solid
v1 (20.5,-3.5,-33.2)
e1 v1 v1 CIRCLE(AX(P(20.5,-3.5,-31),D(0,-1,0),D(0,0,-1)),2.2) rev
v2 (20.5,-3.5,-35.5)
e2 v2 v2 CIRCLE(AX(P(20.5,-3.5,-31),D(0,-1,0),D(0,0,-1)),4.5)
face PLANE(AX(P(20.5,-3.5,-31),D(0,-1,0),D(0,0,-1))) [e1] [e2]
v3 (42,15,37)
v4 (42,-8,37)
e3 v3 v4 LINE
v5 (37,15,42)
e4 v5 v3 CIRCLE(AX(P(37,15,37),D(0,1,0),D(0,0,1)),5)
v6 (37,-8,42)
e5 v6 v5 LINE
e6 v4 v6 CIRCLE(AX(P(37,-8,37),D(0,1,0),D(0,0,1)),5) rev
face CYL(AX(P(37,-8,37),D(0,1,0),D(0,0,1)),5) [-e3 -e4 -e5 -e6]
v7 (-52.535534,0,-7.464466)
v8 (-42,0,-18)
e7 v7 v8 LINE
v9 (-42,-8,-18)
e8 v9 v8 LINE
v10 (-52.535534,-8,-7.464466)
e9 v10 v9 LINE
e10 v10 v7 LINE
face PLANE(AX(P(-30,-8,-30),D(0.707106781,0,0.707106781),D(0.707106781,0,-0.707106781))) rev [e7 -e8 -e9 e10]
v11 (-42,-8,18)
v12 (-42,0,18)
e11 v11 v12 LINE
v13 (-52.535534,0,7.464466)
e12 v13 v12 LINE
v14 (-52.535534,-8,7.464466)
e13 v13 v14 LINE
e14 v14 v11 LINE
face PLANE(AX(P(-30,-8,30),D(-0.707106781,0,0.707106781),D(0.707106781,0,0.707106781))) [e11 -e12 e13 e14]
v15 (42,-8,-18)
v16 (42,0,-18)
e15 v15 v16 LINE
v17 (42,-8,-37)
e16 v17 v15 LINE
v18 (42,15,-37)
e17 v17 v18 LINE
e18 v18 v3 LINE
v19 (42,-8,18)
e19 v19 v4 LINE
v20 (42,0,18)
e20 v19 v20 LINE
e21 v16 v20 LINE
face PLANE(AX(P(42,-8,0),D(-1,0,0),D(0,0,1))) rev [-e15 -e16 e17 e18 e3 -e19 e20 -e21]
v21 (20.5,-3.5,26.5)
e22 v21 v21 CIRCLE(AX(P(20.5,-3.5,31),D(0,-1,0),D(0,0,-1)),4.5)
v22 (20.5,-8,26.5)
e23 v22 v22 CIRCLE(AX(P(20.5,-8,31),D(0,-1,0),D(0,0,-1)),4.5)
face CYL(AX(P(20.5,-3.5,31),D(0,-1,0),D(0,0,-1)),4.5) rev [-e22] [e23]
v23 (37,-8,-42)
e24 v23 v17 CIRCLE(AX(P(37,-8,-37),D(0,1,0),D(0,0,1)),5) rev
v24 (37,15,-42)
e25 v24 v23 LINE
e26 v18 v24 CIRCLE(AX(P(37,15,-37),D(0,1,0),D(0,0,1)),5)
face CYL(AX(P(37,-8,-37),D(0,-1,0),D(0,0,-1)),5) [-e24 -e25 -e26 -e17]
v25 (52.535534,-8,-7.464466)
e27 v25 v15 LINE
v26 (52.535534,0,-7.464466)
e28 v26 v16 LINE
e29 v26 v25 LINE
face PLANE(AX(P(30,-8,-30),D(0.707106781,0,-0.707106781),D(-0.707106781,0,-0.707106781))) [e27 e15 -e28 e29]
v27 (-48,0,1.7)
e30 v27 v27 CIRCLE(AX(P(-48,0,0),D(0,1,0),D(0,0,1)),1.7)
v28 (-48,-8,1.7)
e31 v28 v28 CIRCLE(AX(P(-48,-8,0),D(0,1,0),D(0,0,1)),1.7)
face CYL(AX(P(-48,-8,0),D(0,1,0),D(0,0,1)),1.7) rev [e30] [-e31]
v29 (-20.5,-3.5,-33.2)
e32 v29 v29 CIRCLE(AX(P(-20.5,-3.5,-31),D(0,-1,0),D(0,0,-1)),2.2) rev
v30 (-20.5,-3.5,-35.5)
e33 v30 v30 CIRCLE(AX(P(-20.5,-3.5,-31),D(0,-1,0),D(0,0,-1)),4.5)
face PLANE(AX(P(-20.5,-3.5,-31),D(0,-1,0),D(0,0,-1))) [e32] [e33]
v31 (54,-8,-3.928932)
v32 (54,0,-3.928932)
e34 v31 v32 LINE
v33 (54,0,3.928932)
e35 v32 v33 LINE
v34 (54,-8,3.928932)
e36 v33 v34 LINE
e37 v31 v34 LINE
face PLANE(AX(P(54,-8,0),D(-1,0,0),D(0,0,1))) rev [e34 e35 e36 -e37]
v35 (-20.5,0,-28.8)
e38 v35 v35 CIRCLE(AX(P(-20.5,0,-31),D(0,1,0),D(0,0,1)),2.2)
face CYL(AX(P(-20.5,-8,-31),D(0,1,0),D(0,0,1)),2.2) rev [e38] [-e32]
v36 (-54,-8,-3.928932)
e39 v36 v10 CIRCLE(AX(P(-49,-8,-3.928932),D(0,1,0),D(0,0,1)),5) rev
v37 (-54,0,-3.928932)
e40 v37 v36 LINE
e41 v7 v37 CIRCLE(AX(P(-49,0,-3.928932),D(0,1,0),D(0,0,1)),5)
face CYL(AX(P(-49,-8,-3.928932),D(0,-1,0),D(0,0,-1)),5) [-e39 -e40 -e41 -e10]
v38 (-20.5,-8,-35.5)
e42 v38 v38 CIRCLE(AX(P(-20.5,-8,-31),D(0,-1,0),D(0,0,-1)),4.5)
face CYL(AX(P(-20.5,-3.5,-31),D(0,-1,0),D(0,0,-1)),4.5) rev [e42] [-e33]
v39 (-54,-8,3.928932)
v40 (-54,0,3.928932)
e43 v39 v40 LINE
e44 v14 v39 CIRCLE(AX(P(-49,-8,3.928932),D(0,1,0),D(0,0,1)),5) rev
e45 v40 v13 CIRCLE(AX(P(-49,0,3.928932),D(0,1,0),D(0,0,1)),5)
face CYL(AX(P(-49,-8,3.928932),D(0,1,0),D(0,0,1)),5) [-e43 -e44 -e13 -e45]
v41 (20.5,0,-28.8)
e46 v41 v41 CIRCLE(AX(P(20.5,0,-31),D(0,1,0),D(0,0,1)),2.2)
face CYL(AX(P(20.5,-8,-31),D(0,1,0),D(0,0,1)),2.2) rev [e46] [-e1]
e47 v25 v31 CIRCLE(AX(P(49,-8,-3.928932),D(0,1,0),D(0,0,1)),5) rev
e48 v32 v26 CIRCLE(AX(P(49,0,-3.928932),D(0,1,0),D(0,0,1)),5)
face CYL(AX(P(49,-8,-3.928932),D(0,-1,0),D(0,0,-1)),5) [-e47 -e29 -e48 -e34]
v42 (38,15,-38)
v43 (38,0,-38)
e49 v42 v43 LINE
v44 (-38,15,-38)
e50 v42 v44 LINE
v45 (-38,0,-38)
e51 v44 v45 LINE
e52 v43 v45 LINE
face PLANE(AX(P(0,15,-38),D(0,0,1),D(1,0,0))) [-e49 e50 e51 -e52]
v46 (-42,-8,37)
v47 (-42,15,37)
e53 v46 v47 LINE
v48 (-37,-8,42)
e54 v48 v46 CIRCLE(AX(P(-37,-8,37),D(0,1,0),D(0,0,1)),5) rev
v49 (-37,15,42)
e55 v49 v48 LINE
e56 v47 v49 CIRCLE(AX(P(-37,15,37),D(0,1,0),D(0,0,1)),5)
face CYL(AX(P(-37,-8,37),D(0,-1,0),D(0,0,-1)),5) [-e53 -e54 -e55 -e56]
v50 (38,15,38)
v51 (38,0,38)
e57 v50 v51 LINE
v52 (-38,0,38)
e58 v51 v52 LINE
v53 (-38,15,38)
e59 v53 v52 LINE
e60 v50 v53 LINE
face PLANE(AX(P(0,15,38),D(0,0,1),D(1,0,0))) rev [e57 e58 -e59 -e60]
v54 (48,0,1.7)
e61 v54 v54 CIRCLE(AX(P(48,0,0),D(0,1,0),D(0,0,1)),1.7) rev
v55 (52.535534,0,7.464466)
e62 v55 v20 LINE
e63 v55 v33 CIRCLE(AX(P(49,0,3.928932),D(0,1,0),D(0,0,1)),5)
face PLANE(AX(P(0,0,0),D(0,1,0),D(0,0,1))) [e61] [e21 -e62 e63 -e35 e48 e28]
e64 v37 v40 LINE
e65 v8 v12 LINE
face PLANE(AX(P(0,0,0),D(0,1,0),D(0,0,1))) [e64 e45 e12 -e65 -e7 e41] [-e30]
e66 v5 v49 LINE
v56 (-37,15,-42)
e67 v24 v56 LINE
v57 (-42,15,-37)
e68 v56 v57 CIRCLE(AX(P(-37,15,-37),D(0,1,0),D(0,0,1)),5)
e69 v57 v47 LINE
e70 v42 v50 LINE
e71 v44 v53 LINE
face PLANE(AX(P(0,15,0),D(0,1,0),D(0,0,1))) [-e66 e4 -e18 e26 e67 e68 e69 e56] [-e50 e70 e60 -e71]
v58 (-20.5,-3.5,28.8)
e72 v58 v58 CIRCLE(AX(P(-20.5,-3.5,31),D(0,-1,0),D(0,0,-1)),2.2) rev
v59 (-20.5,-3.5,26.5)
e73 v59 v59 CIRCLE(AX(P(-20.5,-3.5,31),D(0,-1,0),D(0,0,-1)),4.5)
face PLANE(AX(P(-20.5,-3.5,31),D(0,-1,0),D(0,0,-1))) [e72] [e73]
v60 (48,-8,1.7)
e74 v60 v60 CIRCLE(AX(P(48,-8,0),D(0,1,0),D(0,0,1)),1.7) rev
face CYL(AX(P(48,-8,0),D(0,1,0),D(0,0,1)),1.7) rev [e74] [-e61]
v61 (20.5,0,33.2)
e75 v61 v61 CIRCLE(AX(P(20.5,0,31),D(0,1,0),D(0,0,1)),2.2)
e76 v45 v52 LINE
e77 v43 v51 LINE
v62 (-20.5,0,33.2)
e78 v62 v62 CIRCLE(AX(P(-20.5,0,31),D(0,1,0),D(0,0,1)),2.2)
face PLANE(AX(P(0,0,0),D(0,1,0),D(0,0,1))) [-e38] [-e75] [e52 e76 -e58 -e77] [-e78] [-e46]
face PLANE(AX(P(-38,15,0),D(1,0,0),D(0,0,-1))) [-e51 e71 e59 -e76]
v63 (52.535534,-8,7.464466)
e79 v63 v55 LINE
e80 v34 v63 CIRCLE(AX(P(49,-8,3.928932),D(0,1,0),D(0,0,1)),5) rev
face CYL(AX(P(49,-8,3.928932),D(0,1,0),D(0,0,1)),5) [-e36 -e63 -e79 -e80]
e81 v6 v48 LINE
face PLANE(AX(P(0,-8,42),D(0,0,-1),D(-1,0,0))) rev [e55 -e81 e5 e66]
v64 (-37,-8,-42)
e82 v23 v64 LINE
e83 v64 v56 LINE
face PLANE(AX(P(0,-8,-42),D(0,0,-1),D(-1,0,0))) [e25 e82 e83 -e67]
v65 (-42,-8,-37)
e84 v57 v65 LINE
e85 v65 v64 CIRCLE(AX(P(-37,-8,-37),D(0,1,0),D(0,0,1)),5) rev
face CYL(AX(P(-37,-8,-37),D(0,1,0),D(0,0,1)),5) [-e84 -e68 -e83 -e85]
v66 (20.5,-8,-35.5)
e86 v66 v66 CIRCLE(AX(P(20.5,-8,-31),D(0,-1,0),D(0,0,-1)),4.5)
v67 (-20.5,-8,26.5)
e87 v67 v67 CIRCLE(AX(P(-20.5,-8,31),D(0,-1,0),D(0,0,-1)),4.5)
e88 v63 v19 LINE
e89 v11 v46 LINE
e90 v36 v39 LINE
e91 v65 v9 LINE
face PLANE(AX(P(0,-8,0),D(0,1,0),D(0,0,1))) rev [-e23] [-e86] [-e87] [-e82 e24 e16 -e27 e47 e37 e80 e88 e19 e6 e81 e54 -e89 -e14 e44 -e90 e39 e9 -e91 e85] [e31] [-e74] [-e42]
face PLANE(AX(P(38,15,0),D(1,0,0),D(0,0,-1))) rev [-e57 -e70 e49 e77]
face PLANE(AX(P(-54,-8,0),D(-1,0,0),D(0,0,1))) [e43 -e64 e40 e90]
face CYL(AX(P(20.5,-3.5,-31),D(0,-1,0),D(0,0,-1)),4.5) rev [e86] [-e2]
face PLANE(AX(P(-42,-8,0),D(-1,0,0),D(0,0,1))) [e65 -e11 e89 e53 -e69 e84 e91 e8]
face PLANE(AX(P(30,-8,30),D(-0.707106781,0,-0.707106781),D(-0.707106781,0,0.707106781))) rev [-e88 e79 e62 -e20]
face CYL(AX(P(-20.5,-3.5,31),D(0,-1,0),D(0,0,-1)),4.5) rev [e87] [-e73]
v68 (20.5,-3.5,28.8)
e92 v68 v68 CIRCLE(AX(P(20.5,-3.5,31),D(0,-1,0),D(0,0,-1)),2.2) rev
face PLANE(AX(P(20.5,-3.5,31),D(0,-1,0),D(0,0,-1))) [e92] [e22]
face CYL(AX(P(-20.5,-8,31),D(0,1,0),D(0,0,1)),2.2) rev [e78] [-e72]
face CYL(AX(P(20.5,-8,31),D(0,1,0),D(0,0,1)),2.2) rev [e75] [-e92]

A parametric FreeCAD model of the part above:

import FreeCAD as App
import Part
import Sketcher
Q = App.Units.Quantity


def edges_at(feature, points):
    """Names of the edges that pass closest to the given points."""
    edges = feature.Shape.Edges
    near = lambda p: min(range(len(edges)), key=lambda i: edges[i].distToShape(Part.Vertex(*p))[0])
    return sorted({f"Edge{near(p) + 1}" for p in points})

doc = App.newDocument("Part")
body = doc.addObject("PartDesign::Body", "Body")

# Sketch on XZ plane
sketch1 = body.newObject("Sketcher::SketchObject", "Sketch")
sketch1.AttachmentSupport = (doc.getObject("XZ_Plane"), [""])
sketch1.MapMode = "FlatFace"
sketch1.addGeometry([
    Part.LineSegment(App.Vector(-42, 18, 0), App.Vector(-42, 42, 0)),  # 0
    Part.LineSegment(App.Vector(-42, 42, 0), App.Vector(42, 42, 0)),  # 1
    Part.LineSegment(App.Vector(42, 42, 0), App.Vector(42, 18, 0)),  # 2
    Part.LineSegment(App.Vector(42, 18, 0), App.Vector(54, 6, 0)),  # 3
    Part.LineSegment(App.Vector(54, 6, 0), App.Vector(54, -6, 0)),  # 4
    Part.LineSegment(App.Vector(54, -6, 0), App.Vector(42, -18, 0)),  # 5
    Part.LineSegment(App.Vector(42, -18, 0), App.Vector(42, -42, 0)),  # 6
    Part.LineSegment(App.Vector(42, -42, 0), App.Vector(-42, -42, 0)),  # 7
    Part.LineSegment(App.Vector(-42, -42, 0), App.Vector(-42, -18, 0)),  # 8
    Part.LineSegment(App.Vector(-42, -18, 0), App.Vector(-54, -6, 0)),  # 9
    Part.LineSegment(App.Vector(-54, -6, 0), App.Vector(-54, 6, 0)),  # 10
    Part.LineSegment(App.Vector(-54, 6, 0), App.Vector(-42, 18, 0)),  # 11
    Part.Circle(App.Vector(-20.5, 31, 0), App.Vector(0, 0, 1), 2.2),  # 12
    Part.Circle(App.Vector(20.5, 31, 0), App.Vector(0, 0, 1), 2.2),  # 13
    Part.Circle(App.Vector(-48, 0, 0), App.Vector(0, 0, 1), 1.7),  # 14
    Part.Circle(App.Vector(-20.5, -31, 0), App.Vector(0, 0, 1), 2.2),  # 15
    Part.Circle(App.Vector(48, 0, 0), App.Vector(0, 0, 1), 1.7),  # 16
    Part.Circle(App.Vector(20.5, -31, 0), App.Vector(0, 0, 1), 2.2),  # 17
], False)
sketch1.addConstraint([
    Sketcher.Constraint("Coincident", 0, 2, 1, 1),
    Sketcher.Constraint("Coincident", 1, 2, 2, 1),
    Sketcher.Constraint("Coincident", 2, 2, 3, 1),
    Sketcher.Constraint("Coincident", 3, 2, 4, 1),
    Sketcher.Constraint("Coincident", 4, 2, 5, 1),
    Sketcher.Constraint("Coincident", 5, 2, 6, 1),
    Sketcher.Constraint("Coincident", 6, 2, 7, 1),
    Sketcher.Constraint("Coincident", 7, 2, 8, 1),
    Sketcher.Constraint("Coincident", 8, 2, 9, 1),
    Sketcher.Constraint("Coincident", 9, 2, 10, 1),
    Sketcher.Constraint("Coincident", 10, 2, 11, 1),
    Sketcher.Constraint("Coincident", 11, 2, 0, 1),
    Sketcher.Constraint("Vertical", 0),
    Sketcher.Constraint("Horizontal", 1),
    Sketcher.Constraint("Vertical", 2),
    Sketcher.Constraint("Vertical", 4),
    Sketcher.Constraint("Vertical", 6),
    Sketcher.Constraint("Horizontal", 7),
    Sketcher.Constraint("Vertical", 8),
    Sketcher.Constraint("Vertical", 10),
    Sketcher.Constraint("Equal", 12, 13),
    Sketcher.Constraint("Equal", 13, 15),
    Sketcher.Constraint("Equal", 14, 16),
    Sketcher.Constraint("Equal", 15, 17),
    Sketcher.Constraint("Symmetric", 13, 3, 15, 3, -1, 1),
    Sketcher.Constraint("Symmetric", 14, 3, 16, 3, -1, 1),
    Sketcher.Constraint("Symmetric", 12, 3, 17, 3, -1, 1),
    Sketcher.Constraint("Symmetric", 0, 2, 6, 2, -1, 1),
    Sketcher.Constraint("Symmetric", 2, 2, 8, 2, -1, 1),
    Sketcher.Constraint("Symmetric", 3, 2, 9, 2, -1, 1),
    Sketcher.Constraint("Symmetric", 12, 3, 13, 3, -2),
    Sketcher.Constraint("Symmetric", 5, 2, 8, 2, -2),
    Sketcher.Constraint("PointOnObject", 14, 3, -1),
    Sketcher.Constraint("Perpendicular", 3, 5),
    Sketcher.Constraint("Perpendicular", 9, 11),
    Sketcher.Constraint("Horizontal", 4, 2, 9, 2),
    Sketcher.Constraint("Horizontal", 3, 2, 10, 2),
    Sketcher.Constraint("Diameter", 12, Q("4.4 mm")),
    Sketcher.Constraint("Diameter", 14, Q("3.4 mm")),
    Sketcher.Constraint("DistanceX", 1, 1, 1, 2, Q("84 mm")),
    Sketcher.Constraint("DistanceY", 0, 1, 0, 2, Q("24 mm")),
    Sketcher.Constraint("DistanceY", 4, 2, 4, 1, Q("12 mm")),
    Sketcher.Constraint("DistanceY", -1, 1, 12, 3, Q("31 mm")),
    Sketcher.Constraint("DistanceX", 14, 3, -1, 1, Q("48 mm")),
    Sketcher.Constraint("DistanceY", -1, 1, 0, 2, Q("42 mm")),
    Sketcher.Constraint("DistanceX", 12, 3, 13, 3, Q("41 mm")),
])
pad1 = body.newObject("PartDesign::Pad", "Pad")
pad1.Profile = sketch1
pad1.Length = 8

# Sketch on XZ plane
sketch2 = body.newObject("Sketcher::SketchObject", "Sketch001")
sketch2.AttachmentSupport = (doc.getObject("XZ_Plane"), [""])
sketch2.MapMode = "FlatFace"
sketch2.addGeometry([
    Part.LineSegment(App.Vector(-42, -42, 0), App.Vector(-42, 42, 0)),  # 0
    Part.LineSegment(App.Vector(-42, 42, 0), App.Vector(42, 42, 0)),  # 1
    Part.LineSegment(App.Vector(42, 42, 0), App.Vector(42, -42, 0)),  # 2
    Part.LineSegment(App.Vector(42, -42, 0), App.Vector(-42, -42, 0)),  # 3
    Part.LineSegment(App.Vector(38, 38, 0), App.Vector(-38, 38, 0)),  # 4
    Part.LineSegment(App.Vector(-38, 38, 0), App.Vector(-38, -38, 0)),  # 5
    Part.LineSegment(App.Vector(-38, -38, 0), App.Vector(38, -38, 0)),  # 6
    Part.LineSegment(App.Vector(38, -38, 0), App.Vector(38, 38, 0)),  # 7
], False)
sketch2.addConstraint([
    Sketcher.Constraint("Coincident", 0, 2, 1, 1),
    Sketcher.Constraint("Coincident", 1, 2, 2, 1),
    Sketcher.Constraint("Coincident", 2, 2, 3, 1),
    Sketcher.Constraint("Coincident", 3, 2, 0, 1),
    Sketcher.Constraint("Coincident", 4, 2, 5, 1),
    Sketcher.Constraint("Coincident", 5, 2, 6, 1),
    Sketcher.Constraint("Coincident", 6, 2, 7, 1),
    Sketcher.Constraint("Coincident", 7, 2, 4, 1),
    Sketcher.Constraint("Vertical", 0),
    Sketcher.Constraint("Horizontal", 1),
    Sketcher.Constraint("Vertical", 2),
    Sketcher.Constraint("Horizontal", 3),
    Sketcher.Constraint("Horizontal", 4),
    Sketcher.Constraint("Vertical", 5),
    Sketcher.Constraint("Horizontal", 6),
    Sketcher.Constraint("Vertical", 7),
    Sketcher.Constraint("Symmetric", 0, 2, 2, 2, -1, 1),
    Sketcher.Constraint("Symmetric", 4, 2, 6, 2, -1, 1),
    Sketcher.Constraint("Equal", 3, 0),
    Sketcher.Constraint("Equal", 6, 5),
    Sketcher.Constraint("DistanceX", 1, 1, 1, 2, Q("84 mm")),
    Sketcher.Constraint("DistanceX", 4, 2, 4, 1, Q("76 mm")),
])
pad2 = body.newObject("PartDesign::Pad", "Pad001")
pad2.Profile = sketch2
pad2.Length = 15
pad2.Reversed = True

# Sketch on XZ plane
sketch3 = body.newObject("Sketcher::SketchObject", "Sketch002")
sketch3.AttachmentSupport = (doc.getObject("XZ_Plane"), [""])
sketch3.MapMode = "FlatFace"
sketch3.AttachmentOffset = App.Placement(App.Vector(0, 0, 8), App.Rotation())
sketch3.addGeometry([
    Part.Circle(App.Vector(-20.5, 31, 0), App.Vector(0, 0, 1), 4.5),
    Part.Circle(App.Vector(-20.5, -31, 0), App.Vector(0, 0, 1), 4.5),
    Part.Circle(App.Vector(20.5, -31, 0), App.Vector(0, 0, 1), 4.5),
    Part.Circle(App.Vector(20.5, 31, 0), App.Vector(0, 0, 1), 4.5),
], False)
sketch3.addConstraint([
    Sketcher.Constraint("Equal", 0, 1),
    Sketcher.Constraint("Equal", 1, 2),
    Sketcher.Constraint("Equal", 2, 3),
    Sketcher.Constraint("Symmetric", 0, 3, 2, 3, -1, 1),
    Sketcher.Constraint("Symmetric", 1, 3, 3, 3, -1, 1),
    Sketcher.Constraint("Symmetric", 1, 3, 2, 3, -2),
    Sketcher.Constraint("Diameter", 0, Q("9 mm")),
    Sketcher.Constraint("DistanceY", -1, 1, 0, 3, Q("31 mm")),
    Sketcher.Constraint("DistanceX", 1, 3, 2, 3, Q("41 mm")),
])
pocket1 = body.newObject("PartDesign::Pocket", "Pocket")
pocket1.Profile = sketch3
pocket1.Length = 4.5
doc.recompute()

fillet = body.newObject("PartDesign::Fillet", "Fillet")
fillet.Base = (pocket1, edges_at(pocket1, [
    (42, 3.5, 42),
    (-42, 3.5, 42),
    (-54, -4, 6),
    (-54, -4, -6),
    (-42, 3.5, -42),
    (42, 3.5, -42),
    (54, -4, -6),
    (54, -4, 6),
]))
fillet.Radius = 5

doc.recompute()
